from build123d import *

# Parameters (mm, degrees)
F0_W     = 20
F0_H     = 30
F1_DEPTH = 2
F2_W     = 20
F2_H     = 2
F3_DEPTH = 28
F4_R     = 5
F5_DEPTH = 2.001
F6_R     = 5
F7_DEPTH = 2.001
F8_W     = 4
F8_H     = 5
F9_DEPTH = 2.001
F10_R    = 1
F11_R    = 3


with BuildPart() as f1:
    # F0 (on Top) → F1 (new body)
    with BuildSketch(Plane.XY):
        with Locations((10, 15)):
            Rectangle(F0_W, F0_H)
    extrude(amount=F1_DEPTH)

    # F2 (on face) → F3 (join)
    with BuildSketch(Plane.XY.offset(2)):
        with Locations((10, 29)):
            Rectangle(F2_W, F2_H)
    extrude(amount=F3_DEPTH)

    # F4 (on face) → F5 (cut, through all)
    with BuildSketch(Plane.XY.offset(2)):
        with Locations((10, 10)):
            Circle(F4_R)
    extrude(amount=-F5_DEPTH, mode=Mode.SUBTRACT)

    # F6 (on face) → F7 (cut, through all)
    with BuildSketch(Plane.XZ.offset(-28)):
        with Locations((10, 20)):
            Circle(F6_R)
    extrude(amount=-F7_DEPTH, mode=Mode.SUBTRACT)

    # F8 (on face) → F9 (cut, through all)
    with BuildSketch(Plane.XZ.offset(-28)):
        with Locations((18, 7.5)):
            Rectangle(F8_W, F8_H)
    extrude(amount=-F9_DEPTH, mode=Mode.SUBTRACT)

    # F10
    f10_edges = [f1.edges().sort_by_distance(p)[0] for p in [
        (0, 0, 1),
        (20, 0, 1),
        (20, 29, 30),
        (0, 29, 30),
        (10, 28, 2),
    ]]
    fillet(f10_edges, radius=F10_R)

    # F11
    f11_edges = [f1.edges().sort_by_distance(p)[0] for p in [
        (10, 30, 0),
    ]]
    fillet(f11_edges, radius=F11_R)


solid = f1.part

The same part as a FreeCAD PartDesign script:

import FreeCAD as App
import Part
import Sketcher
from FreeCAD import Vector
Q = App.Units.Quantity


def edges_at(feature, points):
    """Names of the edges that pass closest to the given points."""
    edges = feature.Shape.Edges
    near = lambda p: min(range(len(edges)), key=lambda i: edges[i].distToShape(Part.Vertex(*p))[0])
    return sorted({f"Edge{near(p) + 1}" for p in points})


def add_polygon(sketch, points):
    """Adds a closed chain of lines whose ends are joined by coincident constraints."""
    first, n = sketch.GeometryCount, len(points)
    for a, b in zip(points, points[1:] + points[:1]):
        sketch.addGeometry(Part.LineSegment(App.Vector(*a, 0), App.Vector(*b, 0)), False)
    for i in range(n):
        sketch.addConstraint(Sketcher.Constraint("Coincident", first + i, 2, first + (i + 1) % n, 1))

doc = App.newDocument("Part")
params = doc.addObject("Spreadsheet::Sheet", "Params")
for row, (alias, value) in enumerate([
    ("sketch1_width", "20 mm"),
    ("sketch1_height", "30 mm"),
    ("pad1_length", "2 mm"),
    ("sketch2_width", "20 mm"),
    ("sketch2_height", "2 mm"),
    ("pad2_length", "28 mm"),
    ("sketch3_diameter", "10 mm"),
    ("sketch4_diameter", "10 mm"),
    ("sketch5_width", "4 mm"),
    ("sketch5_height", "5 mm"),
    ("fillet_radius", "1 mm"),
    ("fillet2_radius", "3 mm"),
], start=1):
    params.set(f"A{row}", alias)
    params.set(f"B{row}", "=" + value)
    params.setAlias(f"B{row}", alias)

body = doc.addObject("PartDesign::Body", "Body")

# Sketch on XY plane
sketch1 = doc.addObject("Sketcher::SketchObject", "Sketch")
body.addObject(sketch1)
sketch1.AttachmentSupport = (doc.XY_Plane, [""])
sketch1.MapMode = "FlatFace"
add_polygon(sketch1, [(0, 30), (0, 0), (20, 0), (20, 30)])  # lines 0-3
sketch1.addConstraint([
    Sketcher.Constraint("Vertical", 0),
    Sketcher.Constraint("Horizontal", 1),
    Sketcher.Constraint("Vertical", 2),
    Sketcher.Constraint("Horizontal", 3),
    Sketcher.Constraint("Coincident", 0, 2, -1, 1),
    Sketcher.Constraint("DistanceX", 1, 1, 1, 2, Q("20 mm")),
    Sketcher.Constraint("DistanceY", 0, 2, 0, 1, Q("30 mm")),
])
sketch1.setExpression("Constraints[9]", "Params.sketch1_width")
sketch1.setExpression("Constraints[10]", "Params.sketch1_height")
pad1 = doc.addObject("PartDesign::Pad", "Pad")
body.addObject(pad1)
pad1.Profile = sketch1
pad1.setExpression("Length", "Params.pad1_length")

# Sketch on XY plane
sketch2 = doc.addObject("Sketcher::SketchObject", "Sketch001")
body.addObject(sketch2)
sketch2.AttachmentSupport = (doc.XY_Plane, [""])
sketch2.MapMode = "FlatFace"
sketch2.AttachmentOffset = App.Placement(Vector(0, 0, 2), App.Rotation())
add_polygon(sketch2, [(0, 30), (0, 28), (20, 28), (20, 30)])  # lines 0-3
sketch2.addConstraint([
    Sketcher.Constraint("Vertical", 0),
    Sketcher.Constraint("Horizontal", 1),
    Sketcher.Constraint("Vertical", 2),
    Sketcher.Constraint("Horizontal", 3),
    Sketcher.Constraint("PointOnObject", 0, 2, -2),
    Sketcher.Constraint("DistanceX", 1, 1, 1, 2, Q("20 mm")),
    Sketcher.Constraint("DistanceY", 0, 2, 0, 1, Q("2 mm")),
    Sketcher.Constraint("DistanceY", -1, 1, 0, 2, Q("28 mm")),
])
sketch2.setExpression("Constraints[9]", "Params.sketch2_width")
sketch2.setExpression("Constraints[10]", "Params.sketch2_height")
pad2 = doc.addObject("PartDesign::Pad", "Pad001")
body.addObject(pad2)
pad2.Profile = sketch2
pad2.setExpression("Length", "Params.pad2_length")

# Sketch on XY plane
sketch3 = doc.addObject("Sketcher::SketchObject", "Sketch002")
body.addObject(sketch3)
sketch3.AttachmentSupport = (doc.XY_Plane, [""])
sketch3.MapMode = "FlatFace"
sketch3.AttachmentOffset = App.Placement(Vector(0, 0, 2), App.Rotation())
sketch3.addGeometry(Part.Circle(Vector(10, 10, 0), Vector(0, 0, 1), 5), False)
sketch3.addConstraint([
    Sketcher.Constraint("Diameter", 0, Q("10 mm")),
    Sketcher.Constraint("DistanceX", -1, 1, 0, 3, Q("10 mm")),
    Sketcher.Constraint("DistanceY", -1, 1, 0, 3, Q("10 mm")),
])
sketch3.setExpression("Constraints[0]", "Params.sketch3_diameter")
pocket1 = doc.addObject("PartDesign::Pocket", "Pocket")
body.addObject(pocket1)
pocket1.Profile = sketch3
pocket1.Type = "ThroughAll"

# Sketch on XZ plane
sketch4 = doc.addObject("Sketcher::SketchObject", "Sketch003")
body.addObject(sketch4)
sketch4.AttachmentSupport = (doc.XZ_Plane, [""])
sketch4.MapMode = "FlatFace"
sketch4.AttachmentOffset = App.Placement(Vector(0, 0, -28), App.Rotation())
sketch4.addGeometry(Part.Circle(Vector(10, 20, 0), Vector(0, 0, 1), 5), False)
sketch4.addConstraint([
    Sketcher.Constraint("Diameter", 0, Q("10 mm")),
    Sketcher.Constraint("DistanceX", -1, 1, 0, 3, Q("10 mm")),
    Sketcher.Constraint("DistanceY", -1, 1, 0, 3, Q("20 mm")),
])
sketch4.setExpression("Constraints[0]", "Params.sketch4_diameter")
pocket2 = doc.addObject("PartDesign::Pocket", "Pocket001")
body.addObject(pocket2)
pocket2.Profile = sketch4
pocket2.Type = "ThroughAll"

# Sketch on XZ plane
sketch5 = doc.addObject("Sketcher::SketchObject", "Sketch004")
body.addObject(sketch5)
sketch5.AttachmentSupport = (doc.XZ_Plane, [""])
sketch5.MapMode = "FlatFace"
sketch5.AttachmentOffset = App.Placement(Vector(0, 0, -28), App.Rotation())
add_polygon(sketch5, [(16, 10), (16, 5), (20, 5), (20, 10)])  # lines 0-3
sketch5.addConstraint([
    Sketcher.Constraint("Vertical", 0),
    Sketcher.Constraint("Horizontal", 1),
    Sketcher.Constraint("Vertical", 2),
    Sketcher.Constraint("Horizontal", 3),
    Sketcher.Constraint("DistanceX", 1, 1, 1, 2, Q("4 mm")),
    Sketcher.Constraint("DistanceY", 0, 2, 0, 1, Q("5 mm")),
    Sketcher.Constraint("DistanceX", -1, 1, 0, 2, Q("16 mm")),
    Sketcher.Constraint("DistanceY", -1, 1, 0, 2, Q("5 mm")),
])
sketch5.setExpression("Constraints[8]", "Params.sketch5_width")
sketch5.setExpression("Constraints[9]", "Params.sketch5_height")
pocket3 = doc.addObject("PartDesign::Pocket", "Pocket002")
body.addObject(pocket3)
pocket3.Profile = sketch5
pocket3.Type = "ThroughAll"
doc.recompute()

fillet = doc.addObject("PartDesign::Fillet", "Fillet")
body.addObject(fillet)
fillet.Base = (pocket3, edges_at(pocket3, [
    (0, 0, 1),
    (20, 0, 1),
    (20, 29, 30),
    (0, 29, 30),
    (10, 28, 2),
]))
fillet.setExpression("Radius", "Params.fillet_radius")
doc.recompute()

fillet2 = doc.addObject("PartDesign::Fillet", "Fillet001")
body.addObject(fillet2)
fillet2.Base = (fillet, edges_at(fillet, [(10, 30, 0)]))
fillet2.setExpression("Radius", "Params.fillet2_radius")

doc.recompute()
